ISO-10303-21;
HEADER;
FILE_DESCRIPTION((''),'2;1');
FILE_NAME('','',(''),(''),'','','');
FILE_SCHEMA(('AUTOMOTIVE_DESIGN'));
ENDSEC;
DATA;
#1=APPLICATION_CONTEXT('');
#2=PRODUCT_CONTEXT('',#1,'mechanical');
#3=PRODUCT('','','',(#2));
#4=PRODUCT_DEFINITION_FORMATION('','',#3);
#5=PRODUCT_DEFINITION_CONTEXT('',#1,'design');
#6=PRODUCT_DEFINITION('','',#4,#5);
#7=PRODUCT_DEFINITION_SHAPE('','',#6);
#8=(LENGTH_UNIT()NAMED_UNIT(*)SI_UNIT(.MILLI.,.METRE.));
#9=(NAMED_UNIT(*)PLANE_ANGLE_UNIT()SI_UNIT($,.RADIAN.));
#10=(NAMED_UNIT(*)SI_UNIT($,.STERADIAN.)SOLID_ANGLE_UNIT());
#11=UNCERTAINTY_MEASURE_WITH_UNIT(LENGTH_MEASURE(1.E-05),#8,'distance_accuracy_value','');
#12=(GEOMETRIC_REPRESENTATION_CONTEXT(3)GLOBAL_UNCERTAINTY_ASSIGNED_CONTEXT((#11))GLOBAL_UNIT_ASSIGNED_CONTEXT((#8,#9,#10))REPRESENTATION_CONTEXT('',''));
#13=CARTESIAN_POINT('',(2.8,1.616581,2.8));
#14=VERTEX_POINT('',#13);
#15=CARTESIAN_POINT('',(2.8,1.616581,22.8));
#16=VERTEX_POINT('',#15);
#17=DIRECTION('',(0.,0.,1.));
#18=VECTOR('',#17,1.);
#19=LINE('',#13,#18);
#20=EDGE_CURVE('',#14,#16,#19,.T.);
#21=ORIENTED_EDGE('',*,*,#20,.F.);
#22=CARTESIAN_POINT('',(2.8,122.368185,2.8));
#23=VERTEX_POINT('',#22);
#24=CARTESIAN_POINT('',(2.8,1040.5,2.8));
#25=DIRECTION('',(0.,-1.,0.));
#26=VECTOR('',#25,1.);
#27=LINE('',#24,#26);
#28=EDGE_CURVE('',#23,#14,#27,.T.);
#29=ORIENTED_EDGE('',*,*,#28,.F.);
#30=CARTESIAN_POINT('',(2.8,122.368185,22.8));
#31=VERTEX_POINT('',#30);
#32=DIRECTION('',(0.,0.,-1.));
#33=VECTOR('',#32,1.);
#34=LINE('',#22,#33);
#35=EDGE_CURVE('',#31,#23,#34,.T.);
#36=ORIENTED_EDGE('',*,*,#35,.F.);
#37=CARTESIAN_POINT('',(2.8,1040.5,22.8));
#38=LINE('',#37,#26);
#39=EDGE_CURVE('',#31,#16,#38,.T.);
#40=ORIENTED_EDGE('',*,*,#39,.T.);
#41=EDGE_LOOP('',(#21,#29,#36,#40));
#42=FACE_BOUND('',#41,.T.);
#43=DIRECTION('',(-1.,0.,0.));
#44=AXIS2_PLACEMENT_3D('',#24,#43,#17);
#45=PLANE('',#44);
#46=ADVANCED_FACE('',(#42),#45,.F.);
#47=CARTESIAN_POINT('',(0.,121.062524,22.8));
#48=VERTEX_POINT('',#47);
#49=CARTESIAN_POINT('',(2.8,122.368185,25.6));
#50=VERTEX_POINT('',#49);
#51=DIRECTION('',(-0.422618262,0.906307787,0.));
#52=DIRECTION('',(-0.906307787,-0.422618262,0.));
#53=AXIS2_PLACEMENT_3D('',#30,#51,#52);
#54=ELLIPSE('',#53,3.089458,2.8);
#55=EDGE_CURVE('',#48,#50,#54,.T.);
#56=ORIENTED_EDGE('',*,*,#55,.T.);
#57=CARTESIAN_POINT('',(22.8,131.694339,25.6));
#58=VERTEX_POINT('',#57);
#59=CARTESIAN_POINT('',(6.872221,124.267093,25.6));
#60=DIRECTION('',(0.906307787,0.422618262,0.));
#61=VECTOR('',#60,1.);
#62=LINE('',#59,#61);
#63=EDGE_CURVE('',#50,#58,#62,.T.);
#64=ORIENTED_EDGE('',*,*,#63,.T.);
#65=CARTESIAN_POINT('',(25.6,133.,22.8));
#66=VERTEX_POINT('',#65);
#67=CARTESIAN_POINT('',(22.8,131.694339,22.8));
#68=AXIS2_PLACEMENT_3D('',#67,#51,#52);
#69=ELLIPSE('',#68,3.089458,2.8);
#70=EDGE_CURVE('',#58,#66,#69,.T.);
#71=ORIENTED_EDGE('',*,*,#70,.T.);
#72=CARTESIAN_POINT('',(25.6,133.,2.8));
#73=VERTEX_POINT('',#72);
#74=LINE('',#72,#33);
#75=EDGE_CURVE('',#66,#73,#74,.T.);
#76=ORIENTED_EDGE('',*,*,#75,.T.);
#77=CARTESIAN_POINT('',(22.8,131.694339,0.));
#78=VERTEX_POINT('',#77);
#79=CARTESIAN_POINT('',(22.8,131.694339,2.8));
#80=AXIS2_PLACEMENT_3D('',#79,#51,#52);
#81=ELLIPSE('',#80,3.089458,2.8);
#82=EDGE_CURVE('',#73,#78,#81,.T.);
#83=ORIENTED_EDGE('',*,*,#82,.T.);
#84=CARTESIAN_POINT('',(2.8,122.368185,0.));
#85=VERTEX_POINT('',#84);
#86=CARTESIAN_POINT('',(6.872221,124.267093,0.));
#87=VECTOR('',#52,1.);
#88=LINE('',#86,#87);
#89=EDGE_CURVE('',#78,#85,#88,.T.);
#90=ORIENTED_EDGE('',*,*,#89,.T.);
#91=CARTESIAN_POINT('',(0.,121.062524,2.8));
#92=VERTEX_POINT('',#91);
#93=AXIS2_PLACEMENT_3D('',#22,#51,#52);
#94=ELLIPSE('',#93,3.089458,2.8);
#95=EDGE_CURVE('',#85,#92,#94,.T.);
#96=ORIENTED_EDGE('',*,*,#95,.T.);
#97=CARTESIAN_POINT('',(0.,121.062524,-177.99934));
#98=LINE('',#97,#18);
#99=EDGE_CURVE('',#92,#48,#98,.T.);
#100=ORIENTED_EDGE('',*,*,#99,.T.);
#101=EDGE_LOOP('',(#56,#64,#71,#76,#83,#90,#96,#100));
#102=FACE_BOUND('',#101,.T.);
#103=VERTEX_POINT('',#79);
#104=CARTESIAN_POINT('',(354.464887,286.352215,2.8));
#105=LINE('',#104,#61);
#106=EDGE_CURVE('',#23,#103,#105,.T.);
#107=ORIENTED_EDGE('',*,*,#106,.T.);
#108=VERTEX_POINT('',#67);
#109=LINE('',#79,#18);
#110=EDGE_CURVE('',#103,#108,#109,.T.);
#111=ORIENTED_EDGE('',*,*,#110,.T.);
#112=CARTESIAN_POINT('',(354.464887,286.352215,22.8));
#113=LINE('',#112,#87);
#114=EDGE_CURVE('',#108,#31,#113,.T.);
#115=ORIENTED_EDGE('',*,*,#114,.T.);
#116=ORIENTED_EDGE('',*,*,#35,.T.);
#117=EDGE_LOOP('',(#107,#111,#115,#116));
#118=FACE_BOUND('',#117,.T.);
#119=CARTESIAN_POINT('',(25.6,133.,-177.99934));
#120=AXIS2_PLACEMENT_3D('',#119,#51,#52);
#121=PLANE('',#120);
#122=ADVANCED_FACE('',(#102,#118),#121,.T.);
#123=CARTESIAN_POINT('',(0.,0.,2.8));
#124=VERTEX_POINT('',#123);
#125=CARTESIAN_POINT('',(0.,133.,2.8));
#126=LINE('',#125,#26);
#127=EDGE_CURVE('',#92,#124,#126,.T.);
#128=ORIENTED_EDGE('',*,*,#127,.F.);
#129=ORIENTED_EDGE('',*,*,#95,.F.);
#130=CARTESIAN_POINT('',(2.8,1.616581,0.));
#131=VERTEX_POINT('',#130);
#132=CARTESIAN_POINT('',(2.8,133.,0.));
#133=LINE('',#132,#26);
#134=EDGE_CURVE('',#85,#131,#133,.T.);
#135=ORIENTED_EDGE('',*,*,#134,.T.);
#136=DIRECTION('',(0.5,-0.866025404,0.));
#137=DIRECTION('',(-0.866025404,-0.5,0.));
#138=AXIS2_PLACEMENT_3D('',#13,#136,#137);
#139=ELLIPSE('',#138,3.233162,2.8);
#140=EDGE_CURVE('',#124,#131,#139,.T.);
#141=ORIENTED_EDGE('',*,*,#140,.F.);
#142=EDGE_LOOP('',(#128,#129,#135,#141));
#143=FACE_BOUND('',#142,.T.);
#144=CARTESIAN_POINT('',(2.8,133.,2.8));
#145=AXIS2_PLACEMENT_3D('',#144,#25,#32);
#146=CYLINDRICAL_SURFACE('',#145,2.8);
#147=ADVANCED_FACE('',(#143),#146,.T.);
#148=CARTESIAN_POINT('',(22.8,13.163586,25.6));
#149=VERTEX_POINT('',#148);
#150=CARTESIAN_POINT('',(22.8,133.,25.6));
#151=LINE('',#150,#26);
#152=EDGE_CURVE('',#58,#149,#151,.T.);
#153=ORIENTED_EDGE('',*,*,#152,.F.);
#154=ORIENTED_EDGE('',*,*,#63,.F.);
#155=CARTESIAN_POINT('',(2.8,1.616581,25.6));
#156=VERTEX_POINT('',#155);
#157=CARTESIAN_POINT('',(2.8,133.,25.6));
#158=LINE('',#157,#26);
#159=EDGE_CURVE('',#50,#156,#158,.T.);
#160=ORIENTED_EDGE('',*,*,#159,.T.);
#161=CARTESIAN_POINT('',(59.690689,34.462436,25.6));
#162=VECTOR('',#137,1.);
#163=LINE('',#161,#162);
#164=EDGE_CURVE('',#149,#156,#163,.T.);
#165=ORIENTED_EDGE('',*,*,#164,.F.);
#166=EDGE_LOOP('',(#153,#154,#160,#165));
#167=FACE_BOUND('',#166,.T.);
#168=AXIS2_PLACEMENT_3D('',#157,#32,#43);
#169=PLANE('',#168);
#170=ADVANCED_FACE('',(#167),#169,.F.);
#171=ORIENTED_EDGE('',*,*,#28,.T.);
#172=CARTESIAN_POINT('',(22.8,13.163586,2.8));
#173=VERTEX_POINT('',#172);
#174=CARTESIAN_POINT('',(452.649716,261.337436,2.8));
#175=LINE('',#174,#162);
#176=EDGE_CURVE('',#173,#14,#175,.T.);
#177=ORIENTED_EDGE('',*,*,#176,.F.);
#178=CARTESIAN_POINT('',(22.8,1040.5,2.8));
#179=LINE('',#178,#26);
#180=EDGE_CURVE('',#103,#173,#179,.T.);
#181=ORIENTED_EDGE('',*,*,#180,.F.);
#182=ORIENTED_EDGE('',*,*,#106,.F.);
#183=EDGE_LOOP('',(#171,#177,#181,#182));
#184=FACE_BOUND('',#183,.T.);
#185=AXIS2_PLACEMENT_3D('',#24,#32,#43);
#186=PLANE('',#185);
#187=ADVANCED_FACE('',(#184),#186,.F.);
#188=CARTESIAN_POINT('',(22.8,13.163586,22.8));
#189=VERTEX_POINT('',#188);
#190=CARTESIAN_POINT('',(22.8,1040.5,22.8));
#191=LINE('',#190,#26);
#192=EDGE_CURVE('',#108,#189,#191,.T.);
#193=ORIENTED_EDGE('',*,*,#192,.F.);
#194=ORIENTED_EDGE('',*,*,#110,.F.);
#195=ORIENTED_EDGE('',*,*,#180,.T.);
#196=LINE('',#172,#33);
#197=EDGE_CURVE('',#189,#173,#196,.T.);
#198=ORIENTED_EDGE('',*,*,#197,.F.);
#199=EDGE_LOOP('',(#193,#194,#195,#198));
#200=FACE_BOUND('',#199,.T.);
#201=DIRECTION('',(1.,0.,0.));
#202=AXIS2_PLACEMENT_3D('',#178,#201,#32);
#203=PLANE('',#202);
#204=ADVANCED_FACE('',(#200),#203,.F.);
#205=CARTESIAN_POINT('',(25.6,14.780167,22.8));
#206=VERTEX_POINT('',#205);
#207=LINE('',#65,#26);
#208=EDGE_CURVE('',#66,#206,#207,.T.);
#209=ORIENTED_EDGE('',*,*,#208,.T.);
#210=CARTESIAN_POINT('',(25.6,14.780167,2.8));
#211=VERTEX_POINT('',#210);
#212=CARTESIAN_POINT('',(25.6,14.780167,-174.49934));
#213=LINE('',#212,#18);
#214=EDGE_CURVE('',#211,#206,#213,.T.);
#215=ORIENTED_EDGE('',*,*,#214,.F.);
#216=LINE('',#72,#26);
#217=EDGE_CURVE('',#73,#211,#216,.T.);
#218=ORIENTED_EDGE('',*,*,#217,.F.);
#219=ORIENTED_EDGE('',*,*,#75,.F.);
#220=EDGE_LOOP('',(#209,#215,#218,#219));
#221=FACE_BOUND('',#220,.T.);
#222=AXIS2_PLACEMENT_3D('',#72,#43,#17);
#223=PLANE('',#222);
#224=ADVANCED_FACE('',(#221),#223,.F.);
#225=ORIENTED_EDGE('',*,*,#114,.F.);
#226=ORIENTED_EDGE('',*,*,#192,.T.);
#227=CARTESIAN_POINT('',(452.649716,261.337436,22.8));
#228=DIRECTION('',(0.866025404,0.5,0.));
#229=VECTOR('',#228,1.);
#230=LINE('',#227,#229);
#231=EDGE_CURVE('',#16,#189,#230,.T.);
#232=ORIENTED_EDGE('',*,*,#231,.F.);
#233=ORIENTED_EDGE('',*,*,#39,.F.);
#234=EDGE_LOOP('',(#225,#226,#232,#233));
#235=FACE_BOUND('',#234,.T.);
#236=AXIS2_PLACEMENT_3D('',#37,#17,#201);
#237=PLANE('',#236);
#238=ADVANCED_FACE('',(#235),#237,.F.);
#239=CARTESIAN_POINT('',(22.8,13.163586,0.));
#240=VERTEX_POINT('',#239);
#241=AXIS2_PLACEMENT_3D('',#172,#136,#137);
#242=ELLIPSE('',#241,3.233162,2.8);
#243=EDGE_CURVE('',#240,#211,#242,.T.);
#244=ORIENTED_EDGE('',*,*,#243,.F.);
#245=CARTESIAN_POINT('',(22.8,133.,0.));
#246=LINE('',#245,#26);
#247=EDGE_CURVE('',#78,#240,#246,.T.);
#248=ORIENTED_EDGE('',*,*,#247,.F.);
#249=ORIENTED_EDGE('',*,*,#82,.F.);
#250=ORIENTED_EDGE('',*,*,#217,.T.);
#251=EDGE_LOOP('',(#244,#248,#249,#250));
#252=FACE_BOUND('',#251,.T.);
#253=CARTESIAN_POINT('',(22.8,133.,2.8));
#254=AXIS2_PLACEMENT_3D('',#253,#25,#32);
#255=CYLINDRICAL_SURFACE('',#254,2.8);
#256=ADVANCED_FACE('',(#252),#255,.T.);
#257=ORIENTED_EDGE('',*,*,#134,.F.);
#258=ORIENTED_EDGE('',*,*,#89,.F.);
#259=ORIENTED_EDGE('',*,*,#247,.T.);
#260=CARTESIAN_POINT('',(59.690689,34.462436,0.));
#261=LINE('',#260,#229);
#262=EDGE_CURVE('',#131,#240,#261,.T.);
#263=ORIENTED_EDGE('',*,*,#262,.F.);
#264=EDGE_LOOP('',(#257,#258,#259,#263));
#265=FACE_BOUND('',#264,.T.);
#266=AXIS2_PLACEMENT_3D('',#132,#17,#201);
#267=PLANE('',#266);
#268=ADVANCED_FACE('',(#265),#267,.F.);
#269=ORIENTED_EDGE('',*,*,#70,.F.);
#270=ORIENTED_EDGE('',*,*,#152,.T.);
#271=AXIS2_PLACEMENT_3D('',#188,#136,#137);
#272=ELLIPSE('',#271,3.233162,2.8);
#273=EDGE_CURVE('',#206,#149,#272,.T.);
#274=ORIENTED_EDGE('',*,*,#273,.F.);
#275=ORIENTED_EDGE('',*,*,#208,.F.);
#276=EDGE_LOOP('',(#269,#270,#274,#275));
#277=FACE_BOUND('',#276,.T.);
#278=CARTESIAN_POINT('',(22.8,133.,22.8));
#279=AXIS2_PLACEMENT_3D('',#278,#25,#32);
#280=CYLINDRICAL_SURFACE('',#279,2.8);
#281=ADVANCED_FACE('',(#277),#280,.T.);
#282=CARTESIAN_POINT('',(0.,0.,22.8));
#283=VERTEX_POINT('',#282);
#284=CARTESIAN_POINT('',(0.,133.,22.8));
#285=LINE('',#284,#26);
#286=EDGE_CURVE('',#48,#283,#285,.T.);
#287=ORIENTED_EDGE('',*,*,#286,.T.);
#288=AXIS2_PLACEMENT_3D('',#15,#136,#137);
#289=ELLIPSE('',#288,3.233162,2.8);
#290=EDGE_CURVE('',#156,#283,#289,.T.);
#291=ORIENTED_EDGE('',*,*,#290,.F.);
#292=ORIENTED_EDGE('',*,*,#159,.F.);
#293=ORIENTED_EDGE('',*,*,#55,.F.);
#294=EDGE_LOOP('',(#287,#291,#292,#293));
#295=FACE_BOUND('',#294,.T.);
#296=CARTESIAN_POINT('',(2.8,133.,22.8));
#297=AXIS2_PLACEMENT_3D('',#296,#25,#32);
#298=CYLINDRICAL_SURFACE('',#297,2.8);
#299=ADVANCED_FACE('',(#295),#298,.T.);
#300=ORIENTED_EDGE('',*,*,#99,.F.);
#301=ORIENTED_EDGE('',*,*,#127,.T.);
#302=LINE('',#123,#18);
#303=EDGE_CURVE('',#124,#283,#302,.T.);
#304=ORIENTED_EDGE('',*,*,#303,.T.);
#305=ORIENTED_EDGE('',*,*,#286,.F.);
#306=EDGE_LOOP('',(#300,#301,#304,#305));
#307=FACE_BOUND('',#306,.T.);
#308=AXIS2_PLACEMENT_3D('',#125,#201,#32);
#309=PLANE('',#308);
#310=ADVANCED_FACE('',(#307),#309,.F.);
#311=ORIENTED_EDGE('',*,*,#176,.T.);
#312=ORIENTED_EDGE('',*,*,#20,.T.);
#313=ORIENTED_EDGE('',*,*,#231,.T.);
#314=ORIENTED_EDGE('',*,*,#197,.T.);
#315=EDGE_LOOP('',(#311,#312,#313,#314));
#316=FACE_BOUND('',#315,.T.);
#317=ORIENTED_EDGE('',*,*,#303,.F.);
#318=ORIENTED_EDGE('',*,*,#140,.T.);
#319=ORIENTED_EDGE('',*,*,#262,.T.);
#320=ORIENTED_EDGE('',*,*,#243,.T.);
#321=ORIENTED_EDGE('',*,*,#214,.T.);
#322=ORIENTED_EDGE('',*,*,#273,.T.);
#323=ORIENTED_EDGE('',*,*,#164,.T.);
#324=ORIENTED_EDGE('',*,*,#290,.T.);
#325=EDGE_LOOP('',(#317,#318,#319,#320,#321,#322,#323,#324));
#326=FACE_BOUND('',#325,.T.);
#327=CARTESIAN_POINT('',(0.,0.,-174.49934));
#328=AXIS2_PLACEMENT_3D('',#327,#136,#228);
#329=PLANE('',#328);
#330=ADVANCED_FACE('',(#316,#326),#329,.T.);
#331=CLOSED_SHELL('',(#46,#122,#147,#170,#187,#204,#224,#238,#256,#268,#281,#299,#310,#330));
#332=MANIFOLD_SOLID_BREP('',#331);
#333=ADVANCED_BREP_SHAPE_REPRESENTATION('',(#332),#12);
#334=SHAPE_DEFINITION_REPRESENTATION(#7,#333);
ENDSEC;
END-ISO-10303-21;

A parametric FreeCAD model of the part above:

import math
import FreeCAD as App
import Part
import Sketcher
from FreeCAD import Vector
Q = App.Units.Quantity

doc = App.newDocument("Part")
body = doc.addObject("PartDesign::Body", "Body")

# Sketch on XZ plane
sketch1 = doc.addObject("Sketcher::SketchObject", "Sketch")
body.addObject(sketch1)
sketch1.AttachmentSupport = (doc.XZ_Plane, [""])
sketch1.MapMode = "FlatFace"
sketch1.addGeometry(Part.LineSegment(Vector(22.8, 0, 0), Vector(2.8, 0, 0)), False)
sketch1.addGeometry(Part.ArcOfCircle(Part.Circle(Vector(2.8, 2.8, 0), Vector(0, 0, 1), 2.8), math.radians(-180), math.radians(-90)), False)
sketch1.addGeometry(Part.LineSegment(Vector(0, 2.8, 0), Vector(0, 22.8, 0)), False)
sketch1.addGeometry(Part.ArcOfCircle(Part.Circle(Vector(2.8, 22.8, 0), Vector(0, 0, 1), 2.8), math.radians(90), math.radians(180)), False)
sketch1.addGeometry(Part.LineSegment(Vector(2.8, 25.6, 0), Vector(22.8, 25.6, 0)), False)
sketch1.addGeometry(Part.ArcOfCircle(Part.Circle(Vector(22.8, 22.8, 0), Vector(0, 0, 1), 2.8), math.radians(0), math.radians(90)), False)
sketch1.addGeometry(Part.LineSegment(Vector(25.6, 22.8, 0), Vector(25.6, 2.8, 0)), False)
sketch1.addGeometry(Part.ArcOfCircle(Part.Circle(Vector(22.8, 2.8, 0), Vector(0, 0, 1), 2.8), math.radians(-90), math.radians(0)), False)
sketch1.addConstraint(Sketcher.Constraint("Tangent", 0, 2, 1, 2))
sketch1.addConstraint(Sketcher.Constraint("Tangent", 1, 1, 2, 1))
sketch1.addConstraint(Sketcher.Constraint("Tangent", 2, 2, 3, 2))
sketch1.addConstraint(Sketcher.Constraint("Tangent", 3, 1, 4, 1))
sketch1.addConstraint(Sketcher.Constraint("Tangent", 4, 2, 5, 2))
sketch1.addConstraint(Sketcher.Constraint("Tangent", 5, 1, 6, 1))
sketch1.addConstraint(Sketcher.Constraint("Tangent", 6, 2, 7, 2))
sketch1.addConstraint(Sketcher.Constraint("Tangent", 7, 1, 0, 1))
sketch1.addConstraint(Sketcher.Constraint("Horizontal", 0))
sketch1.addConstraint(Sketcher.Constraint("Vertical", 2))
sketch1.addConstraint(Sketcher.Constraint("Horizontal", 4))
sketch1.addConstraint(Sketcher.Constraint("Vertical", 6))
sketch1.addConstraint(Sketcher.Constraint("Equal", 1, 3))
sketch1.addConstraint(Sketcher.Constraint("Equal", 3, 5))
sketch1.addConstraint(Sketcher.Constraint("Equal", 5, 7))
sketch1.addConstraint(Sketcher.Constraint("PointOnObject", 0, 2, -1))
sketch1.addConstraint(Sketcher.Constraint("PointOnObject", 1, 1, -2))
sketch1.addConstraint(Sketcher.Constraint("Equal", 4, 2))
sketch1.addConstraint(Sketcher.Constraint("Radius", 1, Q("2.8 mm")))
sketch1.addConstraint(Sketcher.Constraint("DistanceX", 0, 2, 0, 1, Q("20 mm")))
pad1 = doc.addObject("PartDesign::Pad", "Pad")
body.addObject(pad1)
pad1.Profile = sketch1
pad1.Length = 133
pad1.Reversed = True

# Sketch on XZ plane
sketch2 = doc.addObject("Sketcher::SketchObject", "Sketch001")
body.addObject(sketch2)
sketch2.AttachmentSupport = (doc.XZ_Plane, [""])
sketch2.MapMode = "FlatFace"
sketch2.addGeometry(Part.LineSegment(Vector(23, 3, 0), Vector(23, 23, 0)), False)
sketch2.addGeometry(Part.LineSegment(Vector(23, 23, 0), Vector(3, 23, 0)), False)
sketch2.addGeometry(Part.LineSegment(Vector(3, 23, 0), Vector(3, 3, 0)), False)
sketch2.addGeometry(Part.LineSegment(Vector(3, 3, 0), Vector(23, 3, 0)), False)
sketch2.addConstraint(Sketcher.Constraint("Coincident", 0, 2, 1, 1))
sketch2.addConstraint(Sketcher.Constraint("Coincident", 1, 2, 2, 1))
sketch2.addConstraint(Sketcher.Constraint("Coincident", 2, 2, 3, 1))
sketch2.addConstraint(Sketcher.Constraint("Coincident", 3, 2, 0, 1))
sketch2.addConstraint(Sketcher.Constraint("Vertical", 0))
sketch2.addConstraint(Sketcher.Constraint("Horizontal", 1))
sketch2.addConstraint(Sketcher.Constraint("Vertical", 2))
sketch2.addConstraint(Sketcher.Constraint("Horizontal", 3))
sketch2.addConstraint(Sketcher.Constraint("Equal", 3, 0))
sketch2.addConstraint(Sketcher.Constraint("DistanceX", 1, 2, 1, 1, Q("20 mm")))
sketch2.addConstraint(Sketcher.Constraint("DistanceX", -1, 1, 0, 2, Q("22.8 mm")))
sketch2.addConstraint(Sketcher.Constraint("DistanceY", -1, 1, 0, 2, Q("22.8 mm")))
pocket1 = doc.addObject("PartDesign::Pocket", "Pocket")
body.addObject(pocket1)
pocket1.Profile = sketch2
pocket1.Length = 1040.5

# Sketch on XY plane
sketch3 = doc.addObject("Sketcher::SketchObject", "Sketch002")
body.addObject(sketch3)
sketch3.AttachmentSupport = (doc.XY_Plane, [""])
sketch3.MapMode = "FlatFace"
sketch3.AttachmentOffset = App.Placement(Vector(0, 0, 22.8), App.Rotation())
sketch3.addGeometry(Part.LineSegment(Vector(280, 252, 0), Vector(26, 133, 0)), False)
sketch3.addGeometry(Part.LineSegment(Vector(26, 133, 0), Vector(0, 121, 0)), False)
sketch3.addGeometry(Part.LineSegment(Vector(0, 121, 0), Vector(-255, 2, 0)), False)
sketch3.addGeometry(Part.LineSegment(Vector(-255, 2, 0), Vector(-492, 511, 0)), False)
sketch3.addGeometry(Part.LineSegment(Vector(-492, 511, 0), Vector(43, 761, 0)), False)
sketch3.addGeometry(Part.LineSegment(Vector(43, 761, 0), Vector(280, 252, 0)), False)
sketch3.addConstraint(Sketcher.Constraint("Coincident", 0, 2, 1, 1))
sketch3.addConstraint(Sketcher.Constraint("Coincident", 1, 2, 2, 1))
sketch3.addConstraint(Sketcher.Constraint("Coincident", 2, 2, 3, 1))
sketch3.addConstraint(Sketcher.Constraint("Coincident", 3, 2, 4, 1))
sketch3.addConstraint(Sketcher.Constraint("Coincident", 4, 2, 5, 1))
sketch3.addConstraint(Sketcher.Constraint("Coincident", 5, 2, 0, 1))
sketch3.addConstraint(Sketcher.Constraint("PointOnObject", 1, 2, -2))
sketch3.addConstraint(Sketcher.Constraint("Parallel", 0, 1))
sketch3.addConstraint(Sketcher.Constraint("Parallel", 1, 2))
sketch3.addConstraint(Sketcher.Constraint("Perpendicular", 2, 3))
sketch3.addConstraint(Sketcher.Constraint("Perpendicular", 3, 4))
sketch3.addConstraint(Sketcher.Constraint("Perpendicular", 4, 5))
sketch3.addConstraint(Sketcher.Constraint("Equal", 0, 2))
sketch3.addConstraint(Sketcher.Constraint("Angle", 0, Q("-155 deg")))
sketch3.addConstraint(Sketcher.Constraint("DistanceY", -1, 1, 0, 2, Q("133 mm")))
sketch3.addConstraint(Sketcher.Constraint("DistanceX", -1, 1, 0, 2, Q("25.6 mm")))
sketch3.addConstraint(Sketcher.Constraint("Distance", 3, Q("561.76541 mm")))
sketch3.addConstraint(Sketcher.Constraint("DistanceY", -1, 1, 3, 2, Q("511.488729 mm")))
pocket2 = doc.addObject("PartDesign::Pocket", "Pocket001")
body.addObject(pocket2)
pocket2.Profile = sketch3
pocket2.Type = "ThroughAll"
pocket2.Midplane = True

# Sketch on XY plane
sketch4 = doc.addObject("Sketcher::SketchObject", "Sketch003")
body.addObject(sketch4)
sketch4.AttachmentSupport = (doc.XY_Plane, [""])
sketch4.MapMode = "FlatFace"
sketch4.AttachmentOffset = App.Placement(Vector(0, 0, 22.8), App.Rotation())
sketch4.addGeometry(Part.LineSegment(Vector(-243, -140, 0), Vector(0, 0, 0)), False)
sketch4.addGeometry(Part.LineSegment(Vector(0, 0, 0), Vector(26, 15, 0)), False)
sketch4.addGeometry(Part.LineSegment(Vector(26, 15, 0), Vector(269, 155, 0)), False)
sketch4.addGeometry(Part.LineSegment(Vector(269, 155, 0), Vector(550, -331, 0)), False)
sketch4.addGeometry(Part.LineSegment(Vector(550, -331, 0), Vector(38, -627, 0)), False)
sketch4.addGeometry(Part.LineSegment(Vector(38, -627, 0), Vector(-243, -140, 0)), False)
sketch4.addConstraint(Sketcher.Constraint("Coincident", 0, 2, 1, 1))
sketch4.addConstraint(Sketcher.Constraint("Coincident", 1, 2, 2, 1))
sketch4.addConstraint(Sketcher.Constraint("Coincident", 2, 2, 3, 1))
sketch4.addConstraint(Sketcher.Constraint("Coincident", 3, 2, 4, 1))
sketch4.addConstraint(Sketcher.Constraint("Coincident", 4, 2, 5, 1))
sketch4.addConstraint(Sketcher.Constraint("Coincident", 5, 2, 0, 1))
sketch4.addConstraint(Sketcher.Constraint("Coincident", 0, 2, -1, 1))
sketch4.addConstraint(Sketcher.Constraint("Parallel", 0, 1))
sketch4.addConstraint(Sketcher.Constraint("Parallel", 1, 2))
sketch4.addConstraint(Sketcher.Constraint("Perpendicular", 2, 3))
sketch4.addConstraint(Sketcher.Constraint("Perpendicular", 3, 4))
sketch4.addConstraint(Sketcher.Constraint("Perpendicular", 4, 5))
sketch4.addConstraint(Sketcher.Constraint("Equal", 0, 2))
sketch4.addConstraint(Sketcher.Constraint("Angle", 0, Q("30 deg")))
sketch4.addConstraint(Sketcher.Constraint("DistanceX", -1, 1, 1, 2, Q("25.6 mm")))
sketch4.addConstraint(Sketcher.Constraint("Distance", 3, Q("561.76541 mm")))
sketch4.addConstraint(Sketcher.Constraint("DistanceX", -1, 1, 2, 2, Q("268.851558 mm")))
pocket3 = doc.addObject("PartDesign::Pocket", "Pocket002")
body.addObject(pocket3)
pocket3.Profile = sketch4
pocket3.Type = "ThroughAll"
pocket3.Midplane = True

doc.recompute()
